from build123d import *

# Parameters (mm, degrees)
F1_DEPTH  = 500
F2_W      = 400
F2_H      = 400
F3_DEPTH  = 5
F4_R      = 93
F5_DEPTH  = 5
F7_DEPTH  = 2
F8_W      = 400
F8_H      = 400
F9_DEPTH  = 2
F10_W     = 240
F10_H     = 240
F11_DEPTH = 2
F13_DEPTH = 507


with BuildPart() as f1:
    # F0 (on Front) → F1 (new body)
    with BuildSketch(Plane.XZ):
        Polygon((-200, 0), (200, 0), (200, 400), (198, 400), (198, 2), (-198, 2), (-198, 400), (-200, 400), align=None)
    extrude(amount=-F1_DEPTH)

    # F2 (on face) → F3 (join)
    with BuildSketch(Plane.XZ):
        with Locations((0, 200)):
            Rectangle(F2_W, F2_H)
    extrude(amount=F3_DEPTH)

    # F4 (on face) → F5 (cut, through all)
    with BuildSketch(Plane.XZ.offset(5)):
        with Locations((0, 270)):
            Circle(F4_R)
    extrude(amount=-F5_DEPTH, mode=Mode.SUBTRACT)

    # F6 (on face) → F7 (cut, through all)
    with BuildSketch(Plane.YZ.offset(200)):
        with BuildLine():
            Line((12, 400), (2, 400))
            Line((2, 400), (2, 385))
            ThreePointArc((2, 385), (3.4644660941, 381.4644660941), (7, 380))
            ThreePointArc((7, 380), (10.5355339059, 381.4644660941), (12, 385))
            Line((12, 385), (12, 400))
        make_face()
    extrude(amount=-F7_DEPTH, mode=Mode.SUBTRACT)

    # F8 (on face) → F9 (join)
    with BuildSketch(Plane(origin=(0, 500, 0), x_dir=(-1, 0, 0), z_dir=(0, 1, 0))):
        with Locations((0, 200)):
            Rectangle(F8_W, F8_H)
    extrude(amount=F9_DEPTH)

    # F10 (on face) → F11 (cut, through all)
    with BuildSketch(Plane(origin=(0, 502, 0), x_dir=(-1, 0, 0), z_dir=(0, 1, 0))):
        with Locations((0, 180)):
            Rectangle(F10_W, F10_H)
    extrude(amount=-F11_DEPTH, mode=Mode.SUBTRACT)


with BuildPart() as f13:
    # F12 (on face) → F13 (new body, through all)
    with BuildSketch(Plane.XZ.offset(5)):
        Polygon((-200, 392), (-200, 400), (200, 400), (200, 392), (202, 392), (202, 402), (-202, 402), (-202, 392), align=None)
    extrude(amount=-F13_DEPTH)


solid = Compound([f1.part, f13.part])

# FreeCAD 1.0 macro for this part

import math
import FreeCAD as App
import Part
import Sketcher
from FreeCAD import Vector

doc = App.newDocument("Part")
body = doc.addObject("PartDesign::Body", "Body")

sketch1 = doc.addObject("Sketcher::SketchObject", "Sketch")
body.addObject(sketch1)
sketch1.AttachmentSupport = (doc.XZ_Plane, [""])
sketch1.MapMode = "FlatFace"
sketch1.addGeometry([
    Part.LineSegment(Vector(-200, 0, 0), Vector(200, 0, 0)),
    Part.LineSegment(Vector(200, 0, 0), Vector(200, 400, 0)),
    Part.LineSegment(Vector(200, 400, 0), Vector(198, 400, 0)),
    Part.LineSegment(Vector(198, 400, 0), Vector(198, 2, 0)),
    Part.LineSegment(Vector(198, 2, 0), Vector(-198, 2, 0)),
    Part.LineSegment(Vector(-198, 2, 0), Vector(-198, 400, 0)),
    Part.LineSegment(Vector(-198, 400, 0), Vector(-200, 400, 0)),
    Part.LineSegment(Vector(-200, 400, 0), Vector(-200, 0, 0)),
], False)
sketch1.addConstraint([
    Sketcher.Constraint("Coincident", 0, 2, 1, 1),
    Sketcher.Constraint("Coincident", 1, 2, 2, 1),
    Sketcher.Constraint("Coincident", 2, 2, 3, 1),
    Sketcher.Constraint("Coincident", 3, 2, 4, 1),
    Sketcher.Constraint("Coincident", 4, 2, 5, 1),
    Sketcher.Constraint("Coincident", 5, 2, 6, 1),
    Sketcher.Constraint("Coincident", 6, 2, 7, 1),
    Sketcher.Constraint("Coincident", 7, 2, 0, 1),
    Sketcher.Constraint("Horizontal", 0),
    Sketcher.Constraint("Vertical", 1),
    Sketcher.Constraint("Horizontal", 2),
    Sketcher.Constraint("Vertical", 3),
    Sketcher.Constraint("Horizontal", 4),
    Sketcher.Constraint("Vertical", 5),
    Sketcher.Constraint("Horizontal", 6),
    Sketcher.Constraint("Vertical", 7),
    Sketcher.Constraint("Symmetric", 0, 2, 7, 2, -1, 1),
    Sketcher.Constraint("Symmetric", 2, 2, 5, 2, -2),
    Sketcher.Constraint("Equal", 0, 1),
    Sketcher.Constraint("DistanceX", 0, 1, 0, 2, 400.0),
    Sketcher.Constraint("DistanceX", 2, 2, 2, 1, 2.0),
    Sketcher.Constraint("DistanceY", 3, 2, 3, 1, 398.0),
])
pad1 = doc.addObject("PartDesign::Pad", "Pad")
body.addObject(pad1)
pad1.Profile = sketch1
pad1.Length = 500
pad1.Reversed = True

sketch2 = doc.addObject("Sketcher::SketchObject", "Sketch001")
body.addObject(sketch2)
sketch2.AttachmentSupport = (doc.XZ_Plane, [""])
sketch2.MapMode = "FlatFace"
sketch2.addGeometry([
    Part.LineSegment(Vector(-200, 400, 0), Vector(-200, 0, 0)),
    Part.LineSegment(Vector(-200, 0, 0), Vector(200, 0, 0)),
    Part.LineSegment(Vector(200, 0, 0), Vector(200, 400, 0)),
    Part.LineSegment(Vector(200, 400, 0), Vector(-200, 400, 0)),
], False)
sketch2.addConstraint([
    Sketcher.Constraint("Coincident", 0, 2, 1, 1),
    Sketcher.Constraint("Coincident", 1, 2, 2, 1),
    Sketcher.Constraint("Coincident", 2, 2, 3, 1),
    Sketcher.Constraint("Coincident", 3, 2, 0, 1),
    Sketcher.Constraint("Vertical", 0),
    Sketcher.Constraint("Horizontal", 1),
    Sketcher.Constraint("Vertical", 2),
    Sketcher.Constraint("Horizontal", 3),
    Sketcher.Constraint("Symmetric", 0, 2, 1, 2, -1, 1),
    Sketcher.Constraint("Equal", 3, 0),
    Sketcher.Constraint("DistanceX", 1, 1, 1, 2, 400.0),
])
pad2 = doc.addObject("PartDesign::Pad", "Pad001")
body.addObject(pad2)
pad2.Profile = sketch2
pad2.Length = 5

sketch3 = doc.addObject("Sketcher::SketchObject", "Sketch002")
body.addObject(sketch3)
sketch3.AttachmentSupport = (doc.XZ_Plane, [""])
sketch3.MapMode = "FlatFace"
sketch3.AttachmentOffset = App.Placement(Vector(0, 0, 5), App.Rotation())
sketch3.addGeometry(Part.Circle(Vector(0, 270, 0), Vector(0, 0, 1), 93), False)
sketch3.addConstraint([
    Sketcher.Constraint("PointOnObject", 0, 3, -2),
    Sketcher.Constraint("Diameter", 0, 186.0),
    Sketcher.Constraint("DistanceY", -1, 1, 0, 3, 270.0),
])
pocket1 = doc.addObject("PartDesign::Pocket", "Pocket")
body.addObject(pocket1)
pocket1.Profile = sketch3
pocket1.Type = "ThroughAll"

sketch4 = doc.addObject("Sketcher::SketchObject", "Sketch003")
body.addObject(sketch4)
sketch4.AttachmentSupport = (doc.YZ_Plane, [""])
sketch4.MapMode = "FlatFace"
sketch4.AttachmentOffset = App.Placement(Vector(0, 0, 200), App.Rotation())
sketch4.addGeometry([
    Part.LineSegment(Vector(12, 400, 0), Vector(2, 400, 0)),
    Part.LineSegment(Vector(2, 400, 0), Vector(2, 385, 0)),
    Part.ArcOfCircle(Part.Circle(Vector(7, 385, 0), Vector(0, 0, 1), 5), math.radians(180), math.radians(270)),
    Part.ArcOfCircle(Part.Circle(Vector(7, 385, 0), Vector(0, 0, 1), 5), math.radians(-90), math.radians(0)),
    Part.LineSegment(Vector(12, 385, 0), Vector(12, 400, 0)),
], False)
sketch4.addConstraint([
    Sketcher.Constraint("Coincident", 0, 2, 1, 1),
    Sketcher.Constraint("Tangent", 1, 2, 2, 1),
    Sketcher.Constraint("Tangent", 2, 2, 3, 1),
    Sketcher.Constraint("Tangent", 3, 2, 4, 1),
    Sketcher.Constraint("Coincident", 4, 2, 0, 1),
    Sketcher.Constraint("Horizontal", 0),
    Sketcher.Constraint("Vertical", 1),
    Sketcher.Constraint("Vertical", 4),
    Sketcher.Constraint("Equal", 2, 3),
    Sketcher.Constraint("Vertical", 3, 3, 2, 2),
    Sketcher.Constraint("Radius", 2, 5.0),
    Sketcher.Constraint("DistanceY", 1, 2, 1, 1, 15.0),
    Sketcher.Constraint("DistanceX", -1, 1, 2, 3, 7.0),
    Sketcher.Constraint("DistanceY", -1, 1, 2, 3, 385.0),
])
pocket2 = doc.addObject("PartDesign::Pocket", "Pocket001")
body.addObject(pocket2)
pocket2.Profile = sketch4
pocket2.Length = 2

sketch5 = doc.addObject("Sketcher::SketchObject", "Sketch004")
body.addObject(sketch5)
sketch5.AttachmentSupport = (doc.XZ_Plane, [""])
sketch5.MapMode = "FlatFace"
sketch5.AttachmentOffset = App.Placement(Vector(0, 0, -500), App.Rotation())
sketch5.addGeometry([
    Part.LineSegment(Vector(200, 400, 0), Vector(200, 0, 0)),
    Part.LineSegment(Vector(200, 0, 0), Vector(-200, 0, 0)),
    Part.LineSegment(Vector(-200, 0, 0), Vector(-200, 400, 0)),
    Part.LineSegment(Vector(-200, 400, 0), Vector(200, 400, 0)),
], False)
sketch5.addConstraint([
    Sketcher.Constraint("Coincident", 0, 2, 1, 1),
    Sketcher.Constraint("Coincident", 1, 2, 2, 1),
    Sketcher.Constraint("Coincident", 2, 2, 3, 1),
    Sketcher.Constraint("Coincident", 3, 2, 0, 1),
    Sketcher.Constraint("Vertical", 0),
    Sketcher.Constraint("Horizontal", 1),
    Sketcher.Constraint("Vertical", 2),
    Sketcher.Constraint("Horizontal", 3),
    Sketcher.Constraint("Symmetric", 0, 2, 1, 2, -1, 1),
    Sketcher.Constraint("Equal", 3, 0),
    Sketcher.Constraint("DistanceX", 1, 2, 1, 1, 400.0),
])
pad3 = doc.addObject("PartDesign::Pad", "Pad002")
body.addObject(pad3)
pad3.Profile = sketch5
pad3.Length = 2
pad3.Reversed = True

sketch6 = doc.addObject("Sketcher::SketchObject", "Sketch005")
body.addObject(sketch6)
sketch6.AttachmentSupport = (doc.XZ_Plane, [""])
sketch6.MapMode = "FlatFace"
sketch6.AttachmentOffset = App.Placement(Vector(0, 0, -502), App.Rotation())
sketch6.addGeometry([
    Part.LineSegment(Vector(120, 300, 0), Vector(120, 60, 0)),
    Part.LineSegment(Vector(120, 60, 0), Vector(-120, 60, 0)),
    Part.LineSegment(Vector(-120, 60, 0), Vector(-120, 300, 0)),
    Part.LineSegment(Vector(-120, 300, 0), Vector(120, 300, 0)),
], False)
sketch6.addConstraint([
    Sketcher.Constraint("Coincident", 0, 2, 1, 1),
    Sketcher.Constraint("Coincident", 1, 2, 2, 1),
    Sketcher.Constraint("Coincident", 2, 2, 3, 1),
    Sketcher.Constraint("Coincident", 3, 2, 0, 1),
    Sketcher.Constraint("Vertical", 0),
    Sketcher.Constraint("Horizontal", 1),
    Sketcher.Constraint("Vertical", 2),
    Sketcher.Constraint("Horizontal", 3),
    Sketcher.Constraint("Equal", 3, 0),
    Sketcher.Constraint("DistanceX", 1, 2, 1, 1, 240.0),
    Sketcher.Constraint("DistanceX", -1, 1, 0, 2, 120.0),
    Sketcher.Constraint("DistanceY", -1, 1, 0, 2, 60.0),
])
pocket3 = doc.addObject("PartDesign::Pocket", "Pocket002")
body.addObject(pocket3)
pocket3.Profile = sketch6
pocket3.Length = 2
pocket3.Reversed = True
body2 = doc.addObject("PartDesign::Body", "Body001")

sketch7 = doc.addObject("Sketcher::SketchObject", "Sketch006")
body2.addObject(sketch7)
sketch7.AttachmentSupport = (doc.getObject("XZ_Plane001"), [""])
sketch7.MapMode = "FlatFace"
sketch7.AttachmentOffset = App.Placement(Vector(0, 0, 5), App.Rotation())
sketch7.addGeometry([
    Part.LineSegment(Vector(-200, 392, 0), Vector(-200, 400, 0)),
    Part.LineSegment(Vector(-200, 400, 0), Vector(200, 400, 0)),
    Part.LineSegment(Vector(200, 400, 0), Vector(200, 392, 0)),
    Part.LineSegment(Vector(200, 392, 0), Vector(202, 392, 0)),
    Part.LineSegment(Vector(202, 392, 0), Vector(202, 402, 0)),
    Part.LineSegment(Vector(202, 402, 0), Vector(-202, 402, 0)),
    Part.LineSegment(Vector(-202, 402, 0), Vector(-202, 392, 0)),
    Part.LineSegment(Vector(-202, 392, 0), Vector(-200, 392, 0)),
], False)
sketch7.addConstraint([
    Sketcher.Constraint("Coincident", 0, 2, 1, 1),
    Sketcher.Constraint("Coincident", 1, 2, 2, 1),
    Sketcher.Constraint("Coincident", 2, 2, 3, 1),
    Sketcher.Constraint("Coincident", 3, 2, 4, 1),
    Sketcher.Constraint("Coincident", 4, 2, 5, 1),
    Sketcher.Constraint("Coincident", 5, 2, 6, 1),
    Sketcher.Constraint("Coincident", 6, 2, 7, 1),
    Sketcher.Constraint("Coincident", 7, 2, 0, 1),
    Sketcher.Constraint("Vertical", 0),
    Sketcher.Constraint("Horizontal", 1),
    Sketcher.Constraint("Vertical", 2),
    Sketcher.Constraint("Horizontal", 3),
    Sketcher.Constraint("Vertical", 4),
    Sketcher.Constraint("Horizontal", 5),
    Sketcher.Constraint("Vertical", 6),
    Sketcher.Constraint("Horizontal", 7),
    Sketcher.Constraint("Symmetric", 3, 2, 6, 2, -2),
    Sketcher.Constraint("Equal", 3, 7),
    Sketcher.Constraint("DistanceX", 1, 1, 1, 2, 400.0),
    Sketcher.Constraint("DistanceX", 3, 1, 3, 2, 2.0),
    Sketcher.Constraint("DistanceY", 0, 1, 0, 2, 8.0),
    Sketcher.Constraint("DistanceY", 4, 1, 4, 2, 10.0),
    Sketcher.Constraint("DistanceY", -1, 1, 0, 2, 400.0),
])
pad4 = doc.addObject("PartDesign::Pad", "Pad003")
body2.addObject(pad4)
pad4.Profile = sketch7
pad4.Length = 507
pad4.Reversed = True

doc.recompute()
